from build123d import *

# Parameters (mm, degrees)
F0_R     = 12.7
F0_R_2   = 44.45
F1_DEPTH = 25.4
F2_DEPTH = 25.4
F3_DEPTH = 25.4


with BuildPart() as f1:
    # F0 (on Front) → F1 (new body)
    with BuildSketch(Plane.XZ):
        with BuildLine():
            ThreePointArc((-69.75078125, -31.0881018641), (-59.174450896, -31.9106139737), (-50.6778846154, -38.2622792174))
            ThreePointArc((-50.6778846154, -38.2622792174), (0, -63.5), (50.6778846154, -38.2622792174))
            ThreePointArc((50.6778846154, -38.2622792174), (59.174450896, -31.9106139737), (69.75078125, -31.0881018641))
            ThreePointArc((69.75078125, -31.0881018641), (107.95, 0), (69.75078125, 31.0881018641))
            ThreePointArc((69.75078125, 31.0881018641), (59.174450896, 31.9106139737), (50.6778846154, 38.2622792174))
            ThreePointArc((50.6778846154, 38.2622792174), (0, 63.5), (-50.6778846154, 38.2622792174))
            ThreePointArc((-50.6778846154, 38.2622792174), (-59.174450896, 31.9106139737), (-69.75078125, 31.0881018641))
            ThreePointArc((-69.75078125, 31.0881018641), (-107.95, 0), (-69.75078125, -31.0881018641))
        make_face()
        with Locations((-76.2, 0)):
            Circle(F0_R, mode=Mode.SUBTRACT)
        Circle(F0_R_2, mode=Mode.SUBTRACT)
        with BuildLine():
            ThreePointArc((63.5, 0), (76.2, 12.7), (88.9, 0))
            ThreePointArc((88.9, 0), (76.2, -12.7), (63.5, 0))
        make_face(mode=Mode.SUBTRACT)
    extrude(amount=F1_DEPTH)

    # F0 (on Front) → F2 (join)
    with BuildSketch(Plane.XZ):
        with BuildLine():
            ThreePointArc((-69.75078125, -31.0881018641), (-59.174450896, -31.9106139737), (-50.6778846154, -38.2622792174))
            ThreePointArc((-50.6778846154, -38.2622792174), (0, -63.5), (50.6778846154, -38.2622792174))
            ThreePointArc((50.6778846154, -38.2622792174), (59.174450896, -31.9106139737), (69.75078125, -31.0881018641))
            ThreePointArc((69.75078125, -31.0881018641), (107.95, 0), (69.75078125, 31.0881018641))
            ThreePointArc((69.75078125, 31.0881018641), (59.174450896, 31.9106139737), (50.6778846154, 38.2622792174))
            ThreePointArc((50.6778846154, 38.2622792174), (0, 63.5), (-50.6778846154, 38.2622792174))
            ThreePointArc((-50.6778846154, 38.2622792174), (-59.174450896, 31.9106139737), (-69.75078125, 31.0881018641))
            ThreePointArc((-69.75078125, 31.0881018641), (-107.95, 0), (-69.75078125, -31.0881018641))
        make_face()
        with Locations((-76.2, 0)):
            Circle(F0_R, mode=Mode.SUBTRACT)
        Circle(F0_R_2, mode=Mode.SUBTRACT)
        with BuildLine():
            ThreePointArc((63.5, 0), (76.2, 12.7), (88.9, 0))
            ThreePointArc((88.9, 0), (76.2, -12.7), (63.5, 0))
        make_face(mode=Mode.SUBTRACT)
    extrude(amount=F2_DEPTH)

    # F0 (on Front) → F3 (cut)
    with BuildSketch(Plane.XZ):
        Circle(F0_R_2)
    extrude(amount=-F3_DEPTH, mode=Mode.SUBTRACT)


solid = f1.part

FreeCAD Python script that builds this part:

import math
import FreeCAD as App
import Part
import Sketcher
Q = App.Units.Quantity

doc = App.newDocument("Part")
body = doc.addObject("PartDesign::Body", "Body")

# Sketch on XZ plane
sketch1 = body.newObject("Sketcher::SketchObject", "Sketch")
sketch1.AttachmentSupport = (doc.getObject("XZ_Plane"), [""])
sketch1.MapMode = "FlatFace"
sketch1.addGeometry(Part.ArcOfCircle(Part.Circle(App.Vector(-66, -50, 0), App.Vector(0, 0, 1), 19), math.radians(37), math.radians(102)), False)
sketch1.addGeometry(Part.ArcOfCircle(Part.Circle(App.Vector(0, 0, 0), App.Vector(0, 0, 1), 64), math.radians(-143), math.radians(-37)), False)
sketch1.addGeometry(Part.ArcOfCircle(Part.Circle(App.Vector(66, -50, 0), App.Vector(0, 0, 1), 19), math.radians(78), math.radians(143)), False)
sketch1.addGeometry(Part.ArcOfCircle(Part.Circle(App.Vector(76, 0, 0), App.Vector(0, 0, 1), 32), math.radians(-102), math.radians(102)), False)
sketch1.addGeometry(Part.ArcOfCircle(Part.Circle(App.Vector(66, 50, 0), App.Vector(0, 0, 1), 19), math.radians(-143), math.radians(-78)), False)
sketch1.addGeometry(Part.ArcOfCircle(Part.Circle(App.Vector(0, 0, 0), App.Vector(0, 0, 1), 64), math.radians(37), math.radians(143)), False)
sketch1.addGeometry(Part.ArcOfCircle(Part.Circle(App.Vector(-66, 50, 0), App.Vector(0, 0, 1), 19), math.radians(-102), math.radians(-37)), False)
sketch1.addGeometry(Part.ArcOfCircle(Part.Circle(App.Vector(-76, 0, 0), App.Vector(0, 0, 1), 32), math.radians(78), math.radians(282)), False)
sketch1.addGeometry(Part.Circle(App.Vector(-76, 0, 0), App.Vector(0, 0, 1), 13), False)
sketch1.addGeometry(Part.Circle(App.Vector(0, 0, 0), App.Vector(0, 0, 1), 44), False)
sketch1.addGeometry(Part.Circle(App.Vector(76, 0, 0), App.Vector(0, 0, 1), 13), False)
sketch1.addConstraint(Sketcher.Constraint("Tangent", 0, 1, 1, 1))
sketch1.addConstraint(Sketcher.Constraint("Tangent", 1, 2, 2, 2))
sketch1.addConstraint(Sketcher.Constraint("Tangent", 2, 1, 3, 1))
sketch1.addConstraint(Sketcher.Constraint("Tangent", 3, 2, 4, 2))
sketch1.addConstraint(Sketcher.Constraint("Tangent", 4, 1, 5, 1))
sketch1.addConstraint(Sketcher.Constraint("Tangent", 5, 2, 6, 2))
sketch1.addConstraint(Sketcher.Constraint("Tangent", 6, 1, 7, 1))
sketch1.addConstraint(Sketcher.Constraint("Tangent", 7, 2, 0, 2))
sketch1.addConstraint(Sketcher.Constraint("Coincident", 1, 3, -1, 1))
sketch1.addConstraint(Sketcher.Constraint("Coincident", 5, 3, -1, 1))
sketch1.addConstraint(Sketcher.Constraint("Coincident", 9, 3, -1, 1))
sketch1.addConstraint(Sketcher.Constraint("Coincident", 8, 3, 7, 3))
sketch1.addConstraint(Sketcher.Constraint("Coincident", 10, 3, 3, 3))
sketch1.addConstraint(Sketcher.Constraint("Equal", 0, 2))
sketch1.addConstraint(Sketcher.Constraint("Equal", 2, 4))
sketch1.addConstraint(Sketcher.Constraint("Equal", 1, 5))
sketch1.addConstraint(Sketcher.Constraint("Equal", 4, 6))
sketch1.addConstraint(Sketcher.Constraint("Equal", 3, 7))
sketch1.addConstraint(Sketcher.Constraint("Equal", 8, 10))
sketch1.addConstraint(Sketcher.Constraint("Symmetric", 3, 3, 7, 3, -1, 1))
sketch1.addConstraint(Sketcher.Constraint("PointOnObject", 3, 3, -1))
sketch1.addConstraint(Sketcher.Constraint("Diameter", 8, Q("1 in")))
sketch1.addConstraint(Sketcher.Constraint("Diameter", 9, Q("3.5 in")))
sketch1.addConstraint(Sketcher.Constraint("Radius", 1, Q("2.5 in")))
sketch1.addConstraint(Sketcher.Constraint("Radius", 0, Q("0.75 in")))
sketch1.addConstraint(Sketcher.Constraint("Radius", 3, Q("1.25 in")))
sketch1.addConstraint(Sketcher.Constraint("DistanceX", -1, 1, 3, 3, Q("3 in")))
pad1 = body.newObject("PartDesign::Pad", "Pad")
pad1.Profile = sketch1
pad1.Length = Q("1 in")

# Sketch on XZ plane
sketch2 = body.newObject("Sketcher::SketchObject", "Sketch001")
sketch2.AttachmentSupport = (doc.getObject("XZ_Plane"), [""])
sketch2.MapMode = "FlatFace"
sketch2.addGeometry(Part.ArcOfCircle(Part.Circle(App.Vector(-66, -50, 0), App.Vector(0, 0, 1), 19), math.radians(37), math.radians(102)), False)
sketch2.addGeometry(Part.ArcOfCircle(Part.Circle(App.Vector(0, 0, 0), App.Vector(0, 0, 1), 64), math.radians(-143), math.radians(-37)), False)
sketch2.addGeometry(Part.ArcOfCircle(Part.Circle(App.Vector(66, -50, 0), App.Vector(0, 0, 1), 19), math.radians(78), math.radians(143)), False)
sketch2.addGeometry(Part.ArcOfCircle(Part.Circle(App.Vector(76, 0, 0), App.Vector(0, 0, 1), 32), math.radians(-102), math.radians(102)), False)
sketch2.addGeometry(Part.ArcOfCircle(Part.Circle(App.Vector(66, 50, 0), App.Vector(0, 0, 1), 19), math.radians(-143), math.radians(-78)), False)
sketch2.addGeometry(Part.ArcOfCircle(Part.Circle(App.Vector(0, 0, 0), App.Vector(0, 0, 1), 64), math.radians(37), math.radians(143)), False)
sketch2.addGeometry(Part.ArcOfCircle(Part.Circle(App.Vector(-66, 50, 0), App.Vector(0, 0, 1), 19), math.radians(-102), math.radians(-37)), False)
sketch2.addGeometry(Part.ArcOfCircle(Part.Circle(App.Vector(-76, 0, 0), App.Vector(0, 0, 1), 32), math.radians(78), math.radians(282)), False)
sketch2.addGeometry(Part.Circle(App.Vector(-76, 0, 0), App.Vector(0, 0, 1), 13), False)
sketch2.addGeometry(Part.Circle(App.Vector(0, 0, 0), App.Vector(0, 0, 1), 44), False)
sketch2.addGeometry(Part.Circle(App.Vector(76, 0, 0), App.Vector(0, 0, 1), 13), False)
sketch2.addConstraint(Sketcher.Constraint("Tangent", 0, 1, 1, 1))
sketch2.addConstraint(Sketcher.Constraint("Tangent", 1, 2, 2, 2))
sketch2.addConstraint(Sketcher.Constraint("Tangent", 2, 1, 3, 1))
sketch2.addConstraint(Sketcher.Constraint("Tangent", 3, 2, 4, 2))
sketch2.addConstraint(Sketcher.Constraint("Tangent", 4, 1, 5, 1))
sketch2.addConstraint(Sketcher.Constraint("Tangent", 5, 2, 6, 2))
sketch2.addConstraint(Sketcher.Constraint("Tangent", 6, 1, 7, 1))
sketch2.addConstraint(Sketcher.Constraint("Tangent", 7, 2, 0, 2))
sketch2.addConstraint(Sketcher.Constraint("Coincident", 1, 3, -1, 1))
sketch2.addConstraint(Sketcher.Constraint("Coincident", 5, 3, -1, 1))
sketch2.addConstraint(Sketcher.Constraint("Coincident", 9, 3, -1, 1))
sketch2.addConstraint(Sketcher.Constraint("Coincident", 8, 3, 7, 3))
sketch2.addConstraint(Sketcher.Constraint("Coincident", 10, 3, 3, 3))
sketch2.addConstraint(Sketcher.Constraint("Equal", 0, 2))
sketch2.addConstraint(Sketcher.Constraint("Equal", 2, 4))
sketch2.addConstraint(Sketcher.Constraint("Equal", 1, 5))
sketch2.addConstraint(Sketcher.Constraint("Equal", 4, 6))
sketch2.addConstraint(Sketcher.Constraint("Equal", 3, 7))
sketch2.addConstraint(Sketcher.Constraint("Equal", 8, 10))
sketch2.addConstraint(Sketcher.Constraint("Symmetric", 3, 3, 7, 3, -1, 1))
sketch2.addConstraint(Sketcher.Constraint("PointOnObject", 3, 3, -1))
sketch2.addConstraint(Sketcher.Constraint("Diameter", 8, Q("1 in")))
sketch2.addConstraint(Sketcher.Constraint("Diameter", 9, Q("3.5 in")))
sketch2.addConstraint(Sketcher.Constraint("Radius", 1, Q("2.5 in")))
sketch2.addConstraint(Sketcher.Constraint("Radius", 0, Q("0.75 in")))
sketch2.addConstraint(Sketcher.Constraint("Radius", 3, Q("1.25 in")))
sketch2.addConstraint(Sketcher.Constraint("DistanceX", -1, 1, 3, 3, Q("3 in")))
pad2 = body.newObject("PartDesign::Pad", "Pad001")
pad2.Profile = sketch2
pad2.Length = Q("1 in")

# Sketch on XZ plane
sketch3 = body.newObject("Sketcher::SketchObject", "Sketch002")
sketch3.AttachmentSupport = (doc.getObject("XZ_Plane"), [""])
sketch3.MapMode = "FlatFace"
sketch3.addGeometry(Part.Circle(App.Vector(0, 0, 0), App.Vector(0, 0, 1), 44), False)
sketch3.addConstraint(Sketcher.Constraint("Coincident", 0, 3, -1, 1))
sketch3.addConstraint(Sketcher.Constraint("Diameter", 0, Q("3.5 in")))
pocket1 = body.newObject("PartDesign::Pocket", "Pocket")
pocket1.Profile = sketch3
pocket1.Length = Q("1 in")

doc.recompute()
